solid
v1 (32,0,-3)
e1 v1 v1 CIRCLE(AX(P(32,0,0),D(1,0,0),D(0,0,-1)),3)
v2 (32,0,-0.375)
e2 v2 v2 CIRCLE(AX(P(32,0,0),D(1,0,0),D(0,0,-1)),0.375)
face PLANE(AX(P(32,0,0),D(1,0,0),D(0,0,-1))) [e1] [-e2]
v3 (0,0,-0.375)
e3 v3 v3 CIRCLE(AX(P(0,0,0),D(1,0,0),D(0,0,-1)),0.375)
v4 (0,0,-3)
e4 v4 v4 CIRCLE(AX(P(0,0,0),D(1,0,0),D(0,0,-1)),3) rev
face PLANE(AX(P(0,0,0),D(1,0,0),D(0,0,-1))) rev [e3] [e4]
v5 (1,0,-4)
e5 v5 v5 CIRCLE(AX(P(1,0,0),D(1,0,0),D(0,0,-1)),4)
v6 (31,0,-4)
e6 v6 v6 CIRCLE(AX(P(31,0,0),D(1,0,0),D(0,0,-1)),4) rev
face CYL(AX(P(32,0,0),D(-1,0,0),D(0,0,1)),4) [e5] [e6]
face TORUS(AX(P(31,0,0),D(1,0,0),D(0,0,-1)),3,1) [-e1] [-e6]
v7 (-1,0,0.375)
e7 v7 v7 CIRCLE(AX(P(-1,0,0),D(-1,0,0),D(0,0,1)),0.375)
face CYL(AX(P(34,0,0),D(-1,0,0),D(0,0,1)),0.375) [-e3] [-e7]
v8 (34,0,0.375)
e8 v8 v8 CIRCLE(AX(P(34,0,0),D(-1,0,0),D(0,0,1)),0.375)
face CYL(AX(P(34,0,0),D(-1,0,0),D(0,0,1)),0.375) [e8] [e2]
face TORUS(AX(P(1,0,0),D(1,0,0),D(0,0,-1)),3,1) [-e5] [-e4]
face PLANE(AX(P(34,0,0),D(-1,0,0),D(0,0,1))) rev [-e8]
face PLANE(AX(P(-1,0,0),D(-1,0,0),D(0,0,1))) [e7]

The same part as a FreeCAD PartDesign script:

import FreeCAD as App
import Part
import Sketcher


def edges_at(feature, points):
    """Names of the edges that pass closest to the given points."""
    edges = feature.Shape.Edges
    near = lambda p: min(range(len(edges)), key=lambda i: edges[i].distToShape(Part.Vertex(*p))[0])
    return sorted({f"Edge{near(p) + 1}" for p in points})

doc = App.newDocument("Part")
body = doc.addObject("PartDesign::Body", "Body")

sketch1 = doc.addObject("Sketcher::SketchObject", "Sketch")
body.addObject(sketch1)
sketch1.AttachmentSupport = (doc.YZ_Plane, [""])
sketch1.MapMode = "FlatFace"
sketch1.addGeometry(Part.Circle(App.Vector(0, 0, 0), App.Vector(0, 0, 1), 4), False)
sketch1.addConstraint([
    Sketcher.Constraint("Coincident", 0, 3, -1, 1),
    Sketcher.Constraint("Diameter", 0, 8.0),
])
pad1 = doc.addObject("PartDesign::Pad", "Pad")
body.addObject(pad1)
pad1.Profile = sketch1
pad1.Length = 32
doc.recompute()

fillet = doc.addObject("PartDesign::Fillet", "Fillet")
body.addObject(fillet)
fillet.Base = (pad1, edges_at(pad1, [(0, 0, 4), (32, 0, 4)]))
fillet.Radius = 1

sketch2 = doc.addObject("Sketcher::SketchObject", "Sketch001")
body.addObject(sketch2)
sketch2.AttachmentSupport = (doc.YZ_Plane, [""])
sketch2.MapMode = "FlatFace"
sketch2.addGeometry(Part.Circle(App.Vector(0, 0, 0), App.Vector(0, 0, 1), 0.38), False)
sketch2.addConstraint([
    Sketcher.Constraint("Coincident", 0, 3, -1, 1),
    Sketcher.Constraint("Diameter", 0, 0.75),
])
pad2 = doc.addObject("PartDesign::Pad", "Pad001")
body.addObject(pad2)
pad2.Profile = sketch2
pad2.Type = "TwoLengths"
pad2.Length = 1
pad2.Length2 = 34
pad2.Reversed = True

doc.recompute()
